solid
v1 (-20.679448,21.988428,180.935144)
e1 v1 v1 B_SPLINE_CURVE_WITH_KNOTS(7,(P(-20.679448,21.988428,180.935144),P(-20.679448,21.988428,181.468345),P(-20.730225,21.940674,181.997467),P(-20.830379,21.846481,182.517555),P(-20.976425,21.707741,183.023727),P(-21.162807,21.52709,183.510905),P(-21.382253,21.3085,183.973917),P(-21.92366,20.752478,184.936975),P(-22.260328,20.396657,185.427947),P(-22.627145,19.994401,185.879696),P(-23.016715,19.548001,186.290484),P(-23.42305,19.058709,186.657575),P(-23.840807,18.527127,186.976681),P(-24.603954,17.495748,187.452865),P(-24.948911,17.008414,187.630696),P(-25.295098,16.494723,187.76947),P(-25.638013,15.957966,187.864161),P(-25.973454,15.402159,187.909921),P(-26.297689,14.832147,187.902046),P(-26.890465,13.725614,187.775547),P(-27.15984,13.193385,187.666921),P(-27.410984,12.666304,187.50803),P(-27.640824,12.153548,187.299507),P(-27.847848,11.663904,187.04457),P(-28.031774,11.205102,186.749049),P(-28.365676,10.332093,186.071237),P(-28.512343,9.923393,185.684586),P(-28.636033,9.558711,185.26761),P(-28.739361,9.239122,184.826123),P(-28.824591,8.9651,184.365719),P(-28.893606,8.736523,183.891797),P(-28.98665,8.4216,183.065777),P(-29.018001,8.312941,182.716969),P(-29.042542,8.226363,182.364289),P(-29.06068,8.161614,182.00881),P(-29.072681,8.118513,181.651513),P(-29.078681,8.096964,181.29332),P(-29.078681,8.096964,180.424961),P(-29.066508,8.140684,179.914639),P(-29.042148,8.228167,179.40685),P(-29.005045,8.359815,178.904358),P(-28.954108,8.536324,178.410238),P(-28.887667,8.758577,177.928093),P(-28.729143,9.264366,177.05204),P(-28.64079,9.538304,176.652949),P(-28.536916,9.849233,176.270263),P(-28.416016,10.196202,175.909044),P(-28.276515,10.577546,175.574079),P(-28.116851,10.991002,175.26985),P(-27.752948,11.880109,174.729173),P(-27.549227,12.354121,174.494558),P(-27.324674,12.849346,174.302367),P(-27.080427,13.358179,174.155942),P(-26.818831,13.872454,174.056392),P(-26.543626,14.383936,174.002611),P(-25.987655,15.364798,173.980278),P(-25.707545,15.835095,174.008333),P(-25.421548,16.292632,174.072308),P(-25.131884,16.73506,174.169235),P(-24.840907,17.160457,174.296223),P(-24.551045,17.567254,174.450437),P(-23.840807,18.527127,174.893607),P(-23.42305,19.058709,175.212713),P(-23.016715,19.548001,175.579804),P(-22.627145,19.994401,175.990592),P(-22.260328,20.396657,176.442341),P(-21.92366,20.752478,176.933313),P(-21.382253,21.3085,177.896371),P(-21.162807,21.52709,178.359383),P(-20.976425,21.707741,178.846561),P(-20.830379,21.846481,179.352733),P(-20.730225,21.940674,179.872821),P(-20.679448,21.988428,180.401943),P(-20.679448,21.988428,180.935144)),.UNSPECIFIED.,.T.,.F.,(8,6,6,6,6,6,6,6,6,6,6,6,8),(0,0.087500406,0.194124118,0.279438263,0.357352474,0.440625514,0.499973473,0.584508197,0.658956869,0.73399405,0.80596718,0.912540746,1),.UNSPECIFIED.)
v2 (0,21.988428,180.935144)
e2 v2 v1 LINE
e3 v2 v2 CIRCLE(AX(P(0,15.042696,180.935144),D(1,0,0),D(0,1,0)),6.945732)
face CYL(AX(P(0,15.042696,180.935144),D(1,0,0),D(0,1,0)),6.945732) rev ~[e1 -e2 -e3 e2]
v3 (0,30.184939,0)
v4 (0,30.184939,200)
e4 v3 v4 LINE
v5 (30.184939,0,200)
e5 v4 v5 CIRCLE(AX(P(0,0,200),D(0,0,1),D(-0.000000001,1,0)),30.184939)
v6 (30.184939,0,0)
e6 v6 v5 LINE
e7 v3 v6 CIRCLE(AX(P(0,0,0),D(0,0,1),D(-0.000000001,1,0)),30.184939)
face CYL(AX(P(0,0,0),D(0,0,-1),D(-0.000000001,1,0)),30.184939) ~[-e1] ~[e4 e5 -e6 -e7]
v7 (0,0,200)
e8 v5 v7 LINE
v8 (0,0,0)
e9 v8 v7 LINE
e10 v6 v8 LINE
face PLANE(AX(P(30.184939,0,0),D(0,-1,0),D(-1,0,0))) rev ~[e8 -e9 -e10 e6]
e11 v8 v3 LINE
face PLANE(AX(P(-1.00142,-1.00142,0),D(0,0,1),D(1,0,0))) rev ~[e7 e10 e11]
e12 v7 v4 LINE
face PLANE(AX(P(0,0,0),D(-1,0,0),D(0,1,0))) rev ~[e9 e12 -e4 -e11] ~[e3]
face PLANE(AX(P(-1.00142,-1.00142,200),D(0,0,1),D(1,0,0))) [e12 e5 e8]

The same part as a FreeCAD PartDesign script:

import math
import FreeCAD as App
import Part
import Sketcher
Q = App.Units.Quantity

doc = App.newDocument("Part")
body = doc.addObject("PartDesign::Body", "Body")

sketch1 = body.newObject("Sketcher::SketchObject", "Sketch")
sketch1.AttachmentSupport = (doc.getObject("XY_Plane"), [""])
sketch1.MapMode = "FlatFace"
sketch1.addGeometry([
    Part.ArcOfCircle(Part.Circle(App.Vector(0, 0, 0), App.Vector(0, 0, 1), 30), math.radians(90), math.radians(360)),
    Part.LineSegment(App.Vector(30, 0, 0), App.Vector(0, 0, 0)),
    Part.LineSegment(App.Vector(0, 0, 0), App.Vector(0, 30, 0)),
], False)
sketch1.addConstraint([
    Sketcher.Constraint("Coincident", 0, 2, 1, 1),
    Sketcher.Constraint("Coincident", 1, 2, 2, 1),
    Sketcher.Constraint("Coincident", 2, 2, 0, 1),
    Sketcher.Constraint("Horizontal", 1),
    Sketcher.Constraint("Vertical", 2),
    Sketcher.Constraint("Coincident", 0, 3, -1, 1),
    Sketcher.Constraint("Coincident", 1, 2, -1, 1),
    Sketcher.Constraint("Radius", 0, Q("30.184939 mm")),
])
pad1 = body.newObject("PartDesign::Pad", "Pad")
pad1.Profile = sketch1
pad1.Length = 200

sketch2 = body.newObject("Sketcher::SketchObject", "Sketch001")
sketch2.AttachmentSupport = (doc.getObject("YZ_Plane"), [""])
sketch2.MapMode = "FlatFace"
sketch2.addGeometry(Part.Circle(App.Vector(15, 181, 0), App.Vector(0, 0, 1), 7), False)
sketch2.addConstraint([
    Sketcher.Constraint("Diameter", 0, Q("13.891464 mm")),
    Sketcher.Constraint("DistanceX", -1, 1, 0, 3, Q("15.042696 mm")),
    Sketcher.Constraint("DistanceY", -1, 1, 0, 3, Q("180.935144 mm")),
])
pocket1 = body.newObject("PartDesign::Pocket", "Pocket")
pocket1.Profile = sketch2
pocket1.Length = 91.314025

doc.recompute()
